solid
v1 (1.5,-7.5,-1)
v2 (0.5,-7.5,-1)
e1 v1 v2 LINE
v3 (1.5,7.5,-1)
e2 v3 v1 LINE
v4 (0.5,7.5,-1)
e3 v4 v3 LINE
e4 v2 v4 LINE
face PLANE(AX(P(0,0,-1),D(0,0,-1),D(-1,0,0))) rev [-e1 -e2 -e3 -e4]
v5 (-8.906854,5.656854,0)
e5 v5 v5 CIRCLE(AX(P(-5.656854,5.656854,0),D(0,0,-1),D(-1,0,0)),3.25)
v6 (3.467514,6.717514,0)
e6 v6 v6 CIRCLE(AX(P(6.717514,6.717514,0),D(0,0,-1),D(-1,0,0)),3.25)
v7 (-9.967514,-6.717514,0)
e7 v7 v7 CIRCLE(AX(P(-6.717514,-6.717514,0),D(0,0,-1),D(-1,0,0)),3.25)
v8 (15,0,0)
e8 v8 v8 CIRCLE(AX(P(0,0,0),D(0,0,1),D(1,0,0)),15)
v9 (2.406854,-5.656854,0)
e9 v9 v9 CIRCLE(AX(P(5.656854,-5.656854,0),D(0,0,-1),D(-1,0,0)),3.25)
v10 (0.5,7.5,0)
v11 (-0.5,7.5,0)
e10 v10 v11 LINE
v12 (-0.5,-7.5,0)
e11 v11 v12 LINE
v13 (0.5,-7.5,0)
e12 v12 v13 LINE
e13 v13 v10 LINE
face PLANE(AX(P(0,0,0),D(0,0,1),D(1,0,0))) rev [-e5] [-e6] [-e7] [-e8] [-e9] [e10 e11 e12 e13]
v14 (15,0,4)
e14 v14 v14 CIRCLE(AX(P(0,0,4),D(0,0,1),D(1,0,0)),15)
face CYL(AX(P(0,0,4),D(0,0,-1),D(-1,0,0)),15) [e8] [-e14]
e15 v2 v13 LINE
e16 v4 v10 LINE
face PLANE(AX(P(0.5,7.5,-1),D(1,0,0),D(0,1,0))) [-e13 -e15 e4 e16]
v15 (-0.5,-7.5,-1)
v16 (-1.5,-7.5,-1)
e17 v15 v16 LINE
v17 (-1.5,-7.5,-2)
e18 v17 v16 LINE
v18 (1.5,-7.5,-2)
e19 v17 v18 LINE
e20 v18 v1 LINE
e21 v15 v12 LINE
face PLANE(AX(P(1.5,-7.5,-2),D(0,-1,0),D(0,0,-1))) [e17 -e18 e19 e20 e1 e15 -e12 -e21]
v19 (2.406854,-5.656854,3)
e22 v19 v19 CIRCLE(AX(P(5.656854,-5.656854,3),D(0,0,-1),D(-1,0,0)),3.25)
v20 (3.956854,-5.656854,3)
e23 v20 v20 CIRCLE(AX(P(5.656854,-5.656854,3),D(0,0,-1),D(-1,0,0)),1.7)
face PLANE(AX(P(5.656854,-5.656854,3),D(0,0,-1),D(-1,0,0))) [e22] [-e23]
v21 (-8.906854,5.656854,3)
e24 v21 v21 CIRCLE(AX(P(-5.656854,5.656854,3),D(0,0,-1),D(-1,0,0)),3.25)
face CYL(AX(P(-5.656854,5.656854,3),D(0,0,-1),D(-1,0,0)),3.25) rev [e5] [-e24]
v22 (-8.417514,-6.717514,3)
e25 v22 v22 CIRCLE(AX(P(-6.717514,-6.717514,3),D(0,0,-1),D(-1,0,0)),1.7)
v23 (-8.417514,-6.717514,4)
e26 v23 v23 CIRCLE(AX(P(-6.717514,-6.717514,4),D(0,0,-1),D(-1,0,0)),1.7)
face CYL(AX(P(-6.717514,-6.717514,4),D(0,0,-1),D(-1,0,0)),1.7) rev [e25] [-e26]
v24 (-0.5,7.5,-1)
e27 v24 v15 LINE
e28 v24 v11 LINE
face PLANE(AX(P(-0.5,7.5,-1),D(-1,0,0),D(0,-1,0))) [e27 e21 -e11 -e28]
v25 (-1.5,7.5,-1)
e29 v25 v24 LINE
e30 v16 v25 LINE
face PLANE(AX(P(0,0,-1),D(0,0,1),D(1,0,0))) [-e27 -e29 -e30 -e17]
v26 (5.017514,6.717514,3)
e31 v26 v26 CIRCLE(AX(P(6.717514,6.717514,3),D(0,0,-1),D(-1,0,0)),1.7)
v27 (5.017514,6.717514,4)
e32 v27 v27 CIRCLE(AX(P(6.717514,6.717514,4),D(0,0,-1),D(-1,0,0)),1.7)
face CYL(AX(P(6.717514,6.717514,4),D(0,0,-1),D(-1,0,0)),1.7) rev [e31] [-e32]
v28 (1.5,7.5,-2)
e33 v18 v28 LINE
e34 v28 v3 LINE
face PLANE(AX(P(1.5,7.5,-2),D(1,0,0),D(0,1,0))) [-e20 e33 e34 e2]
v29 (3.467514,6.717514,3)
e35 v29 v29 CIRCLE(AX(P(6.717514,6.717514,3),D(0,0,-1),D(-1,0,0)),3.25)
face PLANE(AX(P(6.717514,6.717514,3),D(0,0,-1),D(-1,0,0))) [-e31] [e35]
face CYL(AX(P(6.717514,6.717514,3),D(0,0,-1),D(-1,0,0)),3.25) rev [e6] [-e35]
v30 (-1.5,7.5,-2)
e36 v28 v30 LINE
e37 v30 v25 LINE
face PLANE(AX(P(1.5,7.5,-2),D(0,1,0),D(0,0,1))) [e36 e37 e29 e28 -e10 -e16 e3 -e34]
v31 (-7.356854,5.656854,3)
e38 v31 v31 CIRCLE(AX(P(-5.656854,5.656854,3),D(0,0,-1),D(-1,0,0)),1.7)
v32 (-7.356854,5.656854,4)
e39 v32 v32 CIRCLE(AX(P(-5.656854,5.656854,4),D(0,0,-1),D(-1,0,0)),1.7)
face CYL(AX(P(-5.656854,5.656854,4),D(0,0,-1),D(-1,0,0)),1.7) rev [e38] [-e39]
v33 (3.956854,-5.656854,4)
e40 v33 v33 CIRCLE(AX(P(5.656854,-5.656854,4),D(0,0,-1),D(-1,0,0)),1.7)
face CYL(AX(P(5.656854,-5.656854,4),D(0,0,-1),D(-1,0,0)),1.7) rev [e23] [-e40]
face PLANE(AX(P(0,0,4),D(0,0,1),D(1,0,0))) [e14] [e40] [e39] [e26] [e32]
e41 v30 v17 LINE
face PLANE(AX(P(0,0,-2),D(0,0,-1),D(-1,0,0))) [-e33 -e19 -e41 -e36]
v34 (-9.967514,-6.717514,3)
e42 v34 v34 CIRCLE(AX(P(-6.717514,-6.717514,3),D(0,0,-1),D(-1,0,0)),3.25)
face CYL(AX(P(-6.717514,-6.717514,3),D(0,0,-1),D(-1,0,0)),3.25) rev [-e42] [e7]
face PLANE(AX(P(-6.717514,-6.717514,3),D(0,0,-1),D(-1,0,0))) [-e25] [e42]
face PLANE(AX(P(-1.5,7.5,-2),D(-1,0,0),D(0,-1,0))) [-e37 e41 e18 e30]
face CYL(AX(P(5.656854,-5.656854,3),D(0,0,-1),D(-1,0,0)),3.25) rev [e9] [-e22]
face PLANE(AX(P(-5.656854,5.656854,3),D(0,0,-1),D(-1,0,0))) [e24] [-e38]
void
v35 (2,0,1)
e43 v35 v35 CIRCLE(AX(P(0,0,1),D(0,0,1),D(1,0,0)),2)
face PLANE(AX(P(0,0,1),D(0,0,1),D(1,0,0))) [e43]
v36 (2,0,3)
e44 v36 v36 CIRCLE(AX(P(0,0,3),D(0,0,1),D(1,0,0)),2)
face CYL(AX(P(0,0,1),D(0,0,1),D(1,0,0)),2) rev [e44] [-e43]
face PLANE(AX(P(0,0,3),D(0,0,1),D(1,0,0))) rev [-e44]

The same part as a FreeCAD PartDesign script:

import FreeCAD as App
import Part
import Sketcher

doc = App.newDocument("Part")
body = doc.addObject("PartDesign::Body", "Body")

# Sketch on XY plane
sketch1 = body.newObject("Sketcher::SketchObject", "Sketch")
sketch1.AttachmentSupport = (doc.getObject("XY_Plane"), [""])
sketch1.MapMode = "FlatFace"
sketch1.addGeometry(Part.Circle(App.Vector(0, 0, 0), App.Vector(0, 0, 1), 15), False)
sketch1.addConstraint(Sketcher.Constraint("Coincident", 0, 3, -1, 1))
sketch1.addConstraint(Sketcher.Constraint("Diameter", 0, 30.0))
pad1 = body.newObject("PartDesign::Pad", "Pad")
pad1.Profile = sketch1
pad1.Length = 4

# Sketch on XY plane
sketch2 = body.newObject("Sketcher::SketchObject", "Sketch001")
sketch2.AttachmentSupport = (doc.getObject("XY_Plane"), [""])
sketch2.MapMode = "FlatFace"
sketch2.addGeometry(Part.Circle(App.Vector(6.7, 6.7, 0), App.Vector(0, 0, 1), 3.2), False)
sketch2.addGeometry(Part.Circle(App.Vector(-6.7, -6.7, 0), App.Vector(0, 0, 1), 3.2), False)
sketch2.addGeometry(Part.Circle(App.Vector(5.7, -5.7, 0), App.Vector(0, 0, 1), 3.2), False)
sketch2.addGeometry(Part.Circle(App.Vector(-5.7, 5.7, 0), App.Vector(0, 0, 1), 3.2), False)
sketch2.addConstraint(Sketcher.Constraint("Equal", 0, 1))
sketch2.addConstraint(Sketcher.Constraint("Equal", 1, 2))
sketch2.addConstraint(Sketcher.Constraint("Equal", 2, 3))
sketch2.addConstraint(Sketcher.Constraint("Symmetric", 0, 3, 1, 3, -1, 1))
sketch2.addConstraint(Sketcher.Constraint("Symmetric", 2, 3, 3, 3, -1, 1))
sketch2.addConstraint(Sketcher.Constraint("Diameter", 0, 6.5))
sketch2.addConstraint(Sketcher.Constraint("DistanceX", 1, 3, 0, 3, 13.435029))
sketch2.addConstraint(Sketcher.Constraint("DistanceY", 1, 3, 0, 3, 13.435029))
sketch2.addConstraint(Sketcher.Constraint("DistanceX", 2, 3, 0, 3, 1.06066))
sketch2.addConstraint(Sketcher.Constraint("DistanceY", 2, 3, 0, 3, 12.374369))
pocket1 = body.newObject("PartDesign::Pocket", "Pocket")
pocket1.Profile = sketch2
pocket1.Length = 3
pocket1.Reversed = True

# Sketch on XY plane
sketch3 = body.newObject("Sketcher::SketchObject", "Sketch002")
sketch3.AttachmentSupport = (doc.getObject("XY_Plane"), [""])
sketch3.MapMode = "FlatFace"
sketch3.addGeometry(Part.Circle(App.Vector(6.7, 6.7, 0), App.Vector(0, 0, 1), 1.7), False)
sketch3.addGeometry(Part.Circle(App.Vector(-5.7, 5.7, 0), App.Vector(0, 0, 1), 1.7), False)
sketch3.addGeometry(Part.Circle(App.Vector(-6.7, -6.7, 0), App.Vector(0, 0, 1), 1.7), False)
sketch3.addGeometry(Part.Circle(App.Vector(5.7, -5.7, 0), App.Vector(0, 0, 1), 1.7), False)
sketch3.addConstraint(Sketcher.Constraint("Equal", 0, 1))
sketch3.addConstraint(Sketcher.Constraint("Equal", 1, 2))
sketch3.addConstraint(Sketcher.Constraint("Equal", 2, 3))
sketch3.addConstraint(Sketcher.Constraint("Symmetric", 0, 3, 2, 3, -1, 1))
sketch3.addConstraint(Sketcher.Constraint("Symmetric", 1, 3, 3, 3, -1, 1))
sketch3.addConstraint(Sketcher.Constraint("Diameter", 0, 3.4))
sketch3.addConstraint(Sketcher.Constraint("DistanceX", 1, 3, 0, 3, 12.374369))
sketch3.addConstraint(Sketcher.Constraint("DistanceY", 1, 3, 0, 3, 1.06066))
sketch3.addConstraint(Sketcher.Constraint("DistanceX", 2, 3, 1, 3, 1.06066))
sketch3.addConstraint(Sketcher.Constraint("DistanceY", 2, 3, 1, 3, 12.374369))
pocket2 = body.newObject("PartDesign::Pocket", "Pocket001")
pocket2.Profile = sketch3
pocket2.Type = "ThroughAll"
pocket2.Reversed = True

# Sketch on XY plane
sketch4 = body.newObject("Sketcher::SketchObject", "Sketch003")
sketch4.AttachmentSupport = (doc.getObject("XY_Plane"), [""])
sketch4.MapMode = "FlatFace"
sketch4.AttachmentOffset = App.Placement(App.Vector(0, 0, 3), App.Rotation())
sketch4.addGeometry(Part.Circle(App.Vector(0, 0, 0), App.Vector(0, 0, 1), 2), False)
sketch4.addConstraint(Sketcher.Constraint("Coincident", 0, 3, -1, 1))
sketch4.addConstraint(Sketcher.Constraint("Diameter", 0, 4.0))
pocket3 = body.newObject("PartDesign::Pocket", "Pocket002")
pocket3.Profile = sketch4
pocket3.Length = 2

# Sketch on XY plane
sketch5 = body.newObject("Sketcher::SketchObject", "Sketch004")
sketch5.AttachmentSupport = (doc.getObject("XY_Plane"), [""])
sketch5.MapMode = "FlatFace"
sketch5.addGeometry(Part.LineSegment(App.Vector(-1.5, 7.5, 0), App.Vector(-1.5, -7.5, 0)), False)
sketch5.addGeometry(Part.LineSegment(App.Vector(-1.5, -7.5, 0), App.Vector(1.5, -7.5, 0)), False)
sketch5.addGeometry(Part.LineSegment(App.Vector(1.5, -7.5, 0), App.Vector(1.5, 7.5, 0)), False)
sketch5.addGeometry(Part.LineSegment(App.Vector(1.5, 7.5, 0), App.Vector(-1.5, 7.5, 0)), False)
sketch5.addConstraint(Sketcher.Constraint("Coincident", 0, 2, 1, 1))
sketch5.addConstraint(Sketcher.Constraint("Coincident", 1, 2, 2, 1))
sketch5.addConstraint(Sketcher.Constraint("Coincident", 2, 2, 3, 1))
sketch5.addConstraint(Sketcher.Constraint("Coincident", 3, 2, 0, 1))
sketch5.addConstraint(Sketcher.Constraint("Vertical", 0))
sketch5.addConstraint(Sketcher.Constraint("Horizontal", 1))
sketch5.addConstraint(Sketcher.Constraint("Vertical", 2))
sketch5.addConstraint(Sketcher.Constraint("Horizontal", 3))
sketch5.addConstraint(Sketcher.Constraint("Symmetric", 0, 2, 2, 2, -1, 1))
sketch5.addConstraint(Sketcher.Constraint("DistanceX", 1, 1, 1, 2, 3.0))
sketch5.addConstraint(Sketcher.Constraint("DistanceY", 0, 2, 0, 1, 15.0))
pad2 = body.newObject("PartDesign::Pad", "Pad001")
pad2.Profile = sketch5
pad2.Length = 2
pad2.Reversed = True

# Sketch on XY plane
sketch6 = body.newObject("Sketcher::SketchObject", "Sketch005")
sketch6.AttachmentSupport = (doc.getObject("XY_Plane"), [""])
sketch6.MapMode = "FlatFace"
sketch6.addGeometry(Part.LineSegment(App.Vector(1.5, 7.5, 0), App.Vector(1.5, -7.5, 0)), False)
sketch6.addGeometry(Part.LineSegment(App.Vector(1.5, -7.5, 0), App.Vector(0.5, -7.5, 0)), False)
sketch6.addGeometry(Part.LineSegment(App.Vector(0.5, -7.5, 0), App.Vector(0.5, 7.5, 0)), False)
sketch6.addGeometry(Part.LineSegment(App.Vector(0.5, 7.5, 0), App.Vector(1.5, 7.5, 0)), False)
sketch6.addGeometry(Part.LineSegment(App.Vector(-0.5, 7.5, 0), App.Vector(-0.5, -7.5, 0)), False)
sketch6.addGeometry(Part.LineSegment(App.Vector(-0.5, -7.5, 0), App.Vector(-1.5, -7.5, 0)), False)
sketch6.addGeometry(Part.LineSegment(App.Vector(-1.5, -7.5, 0), App.Vector(-1.5, 7.5, 0)), False)
sketch6.addGeometry(Part.LineSegment(App.Vector(-1.5, 7.5, 0), App.Vector(-0.5, 7.5, 0)), False)
sketch6.addConstraint(Sketcher.Constraint("Coincident", 0, 2, 1, 1))
sketch6.addConstraint(Sketcher.Constraint("Coincident", 1, 2, 2, 1))
sketch6.addConstraint(Sketcher.Constraint("Coincident", 2, 2, 3, 1))
sketch6.addConstraint(Sketcher.Constraint("Coincident", 3, 2, 0, 1))
sketch6.addConstraint(Sketcher.Constraint("Coincident", 4, 2, 5, 1))
sketch6.addConstraint(Sketcher.Constraint("Coincident", 5, 2, 6, 1))
sketch6.addConstraint(Sketcher.Constraint("Coincident", 6, 2, 7, 1))
sketch6.addConstraint(Sketcher.Constraint("Coincident", 7, 2, 4, 1))
sketch6.addConstraint(Sketcher.Constraint("Vertical", 0))
sketch6.addConstraint(Sketcher.Constraint("Horizontal", 1))
sketch6.addConstraint(Sketcher.Constraint("Vertical", 2))
sketch6.addConstraint(Sketcher.Constraint("Horizontal", 3))
sketch6.addConstraint(Sketcher.Constraint("Vertical", 4))
sketch6.addConstraint(Sketcher.Constraint("Horizontal", 5))
sketch6.addConstraint(Sketcher.Constraint("Vertical", 6))
sketch6.addConstraint(Sketcher.Constraint("Horizontal", 7))
sketch6.addConstraint(Sketcher.Constraint("Symmetric", 2, 2, 4, 2, -1, 1))
sketch6.addConstraint(Sketcher.Constraint("Symmetric", 0, 2, 6, 2, -1, 1))
sketch6.addConstraint(Sketcher.Constraint("Horizontal", 1, 2, 4, 2))
sketch6.addConstraint(Sketcher.Constraint("DistanceX", 1, 2, 1, 1, 1.0))
sketch6.addConstraint(Sketcher.Constraint("DistanceY", 0, 2, 0, 1, 15.0))
sketch6.addConstraint(Sketcher.Constraint("DistanceX", 4, 2, 1, 2, 1.0))
pocket4 = body.newObject("PartDesign::Pocket", "Pocket003")
pocket4.Profile = sketch6
pocket4.Length = 1

doc.recompute()
